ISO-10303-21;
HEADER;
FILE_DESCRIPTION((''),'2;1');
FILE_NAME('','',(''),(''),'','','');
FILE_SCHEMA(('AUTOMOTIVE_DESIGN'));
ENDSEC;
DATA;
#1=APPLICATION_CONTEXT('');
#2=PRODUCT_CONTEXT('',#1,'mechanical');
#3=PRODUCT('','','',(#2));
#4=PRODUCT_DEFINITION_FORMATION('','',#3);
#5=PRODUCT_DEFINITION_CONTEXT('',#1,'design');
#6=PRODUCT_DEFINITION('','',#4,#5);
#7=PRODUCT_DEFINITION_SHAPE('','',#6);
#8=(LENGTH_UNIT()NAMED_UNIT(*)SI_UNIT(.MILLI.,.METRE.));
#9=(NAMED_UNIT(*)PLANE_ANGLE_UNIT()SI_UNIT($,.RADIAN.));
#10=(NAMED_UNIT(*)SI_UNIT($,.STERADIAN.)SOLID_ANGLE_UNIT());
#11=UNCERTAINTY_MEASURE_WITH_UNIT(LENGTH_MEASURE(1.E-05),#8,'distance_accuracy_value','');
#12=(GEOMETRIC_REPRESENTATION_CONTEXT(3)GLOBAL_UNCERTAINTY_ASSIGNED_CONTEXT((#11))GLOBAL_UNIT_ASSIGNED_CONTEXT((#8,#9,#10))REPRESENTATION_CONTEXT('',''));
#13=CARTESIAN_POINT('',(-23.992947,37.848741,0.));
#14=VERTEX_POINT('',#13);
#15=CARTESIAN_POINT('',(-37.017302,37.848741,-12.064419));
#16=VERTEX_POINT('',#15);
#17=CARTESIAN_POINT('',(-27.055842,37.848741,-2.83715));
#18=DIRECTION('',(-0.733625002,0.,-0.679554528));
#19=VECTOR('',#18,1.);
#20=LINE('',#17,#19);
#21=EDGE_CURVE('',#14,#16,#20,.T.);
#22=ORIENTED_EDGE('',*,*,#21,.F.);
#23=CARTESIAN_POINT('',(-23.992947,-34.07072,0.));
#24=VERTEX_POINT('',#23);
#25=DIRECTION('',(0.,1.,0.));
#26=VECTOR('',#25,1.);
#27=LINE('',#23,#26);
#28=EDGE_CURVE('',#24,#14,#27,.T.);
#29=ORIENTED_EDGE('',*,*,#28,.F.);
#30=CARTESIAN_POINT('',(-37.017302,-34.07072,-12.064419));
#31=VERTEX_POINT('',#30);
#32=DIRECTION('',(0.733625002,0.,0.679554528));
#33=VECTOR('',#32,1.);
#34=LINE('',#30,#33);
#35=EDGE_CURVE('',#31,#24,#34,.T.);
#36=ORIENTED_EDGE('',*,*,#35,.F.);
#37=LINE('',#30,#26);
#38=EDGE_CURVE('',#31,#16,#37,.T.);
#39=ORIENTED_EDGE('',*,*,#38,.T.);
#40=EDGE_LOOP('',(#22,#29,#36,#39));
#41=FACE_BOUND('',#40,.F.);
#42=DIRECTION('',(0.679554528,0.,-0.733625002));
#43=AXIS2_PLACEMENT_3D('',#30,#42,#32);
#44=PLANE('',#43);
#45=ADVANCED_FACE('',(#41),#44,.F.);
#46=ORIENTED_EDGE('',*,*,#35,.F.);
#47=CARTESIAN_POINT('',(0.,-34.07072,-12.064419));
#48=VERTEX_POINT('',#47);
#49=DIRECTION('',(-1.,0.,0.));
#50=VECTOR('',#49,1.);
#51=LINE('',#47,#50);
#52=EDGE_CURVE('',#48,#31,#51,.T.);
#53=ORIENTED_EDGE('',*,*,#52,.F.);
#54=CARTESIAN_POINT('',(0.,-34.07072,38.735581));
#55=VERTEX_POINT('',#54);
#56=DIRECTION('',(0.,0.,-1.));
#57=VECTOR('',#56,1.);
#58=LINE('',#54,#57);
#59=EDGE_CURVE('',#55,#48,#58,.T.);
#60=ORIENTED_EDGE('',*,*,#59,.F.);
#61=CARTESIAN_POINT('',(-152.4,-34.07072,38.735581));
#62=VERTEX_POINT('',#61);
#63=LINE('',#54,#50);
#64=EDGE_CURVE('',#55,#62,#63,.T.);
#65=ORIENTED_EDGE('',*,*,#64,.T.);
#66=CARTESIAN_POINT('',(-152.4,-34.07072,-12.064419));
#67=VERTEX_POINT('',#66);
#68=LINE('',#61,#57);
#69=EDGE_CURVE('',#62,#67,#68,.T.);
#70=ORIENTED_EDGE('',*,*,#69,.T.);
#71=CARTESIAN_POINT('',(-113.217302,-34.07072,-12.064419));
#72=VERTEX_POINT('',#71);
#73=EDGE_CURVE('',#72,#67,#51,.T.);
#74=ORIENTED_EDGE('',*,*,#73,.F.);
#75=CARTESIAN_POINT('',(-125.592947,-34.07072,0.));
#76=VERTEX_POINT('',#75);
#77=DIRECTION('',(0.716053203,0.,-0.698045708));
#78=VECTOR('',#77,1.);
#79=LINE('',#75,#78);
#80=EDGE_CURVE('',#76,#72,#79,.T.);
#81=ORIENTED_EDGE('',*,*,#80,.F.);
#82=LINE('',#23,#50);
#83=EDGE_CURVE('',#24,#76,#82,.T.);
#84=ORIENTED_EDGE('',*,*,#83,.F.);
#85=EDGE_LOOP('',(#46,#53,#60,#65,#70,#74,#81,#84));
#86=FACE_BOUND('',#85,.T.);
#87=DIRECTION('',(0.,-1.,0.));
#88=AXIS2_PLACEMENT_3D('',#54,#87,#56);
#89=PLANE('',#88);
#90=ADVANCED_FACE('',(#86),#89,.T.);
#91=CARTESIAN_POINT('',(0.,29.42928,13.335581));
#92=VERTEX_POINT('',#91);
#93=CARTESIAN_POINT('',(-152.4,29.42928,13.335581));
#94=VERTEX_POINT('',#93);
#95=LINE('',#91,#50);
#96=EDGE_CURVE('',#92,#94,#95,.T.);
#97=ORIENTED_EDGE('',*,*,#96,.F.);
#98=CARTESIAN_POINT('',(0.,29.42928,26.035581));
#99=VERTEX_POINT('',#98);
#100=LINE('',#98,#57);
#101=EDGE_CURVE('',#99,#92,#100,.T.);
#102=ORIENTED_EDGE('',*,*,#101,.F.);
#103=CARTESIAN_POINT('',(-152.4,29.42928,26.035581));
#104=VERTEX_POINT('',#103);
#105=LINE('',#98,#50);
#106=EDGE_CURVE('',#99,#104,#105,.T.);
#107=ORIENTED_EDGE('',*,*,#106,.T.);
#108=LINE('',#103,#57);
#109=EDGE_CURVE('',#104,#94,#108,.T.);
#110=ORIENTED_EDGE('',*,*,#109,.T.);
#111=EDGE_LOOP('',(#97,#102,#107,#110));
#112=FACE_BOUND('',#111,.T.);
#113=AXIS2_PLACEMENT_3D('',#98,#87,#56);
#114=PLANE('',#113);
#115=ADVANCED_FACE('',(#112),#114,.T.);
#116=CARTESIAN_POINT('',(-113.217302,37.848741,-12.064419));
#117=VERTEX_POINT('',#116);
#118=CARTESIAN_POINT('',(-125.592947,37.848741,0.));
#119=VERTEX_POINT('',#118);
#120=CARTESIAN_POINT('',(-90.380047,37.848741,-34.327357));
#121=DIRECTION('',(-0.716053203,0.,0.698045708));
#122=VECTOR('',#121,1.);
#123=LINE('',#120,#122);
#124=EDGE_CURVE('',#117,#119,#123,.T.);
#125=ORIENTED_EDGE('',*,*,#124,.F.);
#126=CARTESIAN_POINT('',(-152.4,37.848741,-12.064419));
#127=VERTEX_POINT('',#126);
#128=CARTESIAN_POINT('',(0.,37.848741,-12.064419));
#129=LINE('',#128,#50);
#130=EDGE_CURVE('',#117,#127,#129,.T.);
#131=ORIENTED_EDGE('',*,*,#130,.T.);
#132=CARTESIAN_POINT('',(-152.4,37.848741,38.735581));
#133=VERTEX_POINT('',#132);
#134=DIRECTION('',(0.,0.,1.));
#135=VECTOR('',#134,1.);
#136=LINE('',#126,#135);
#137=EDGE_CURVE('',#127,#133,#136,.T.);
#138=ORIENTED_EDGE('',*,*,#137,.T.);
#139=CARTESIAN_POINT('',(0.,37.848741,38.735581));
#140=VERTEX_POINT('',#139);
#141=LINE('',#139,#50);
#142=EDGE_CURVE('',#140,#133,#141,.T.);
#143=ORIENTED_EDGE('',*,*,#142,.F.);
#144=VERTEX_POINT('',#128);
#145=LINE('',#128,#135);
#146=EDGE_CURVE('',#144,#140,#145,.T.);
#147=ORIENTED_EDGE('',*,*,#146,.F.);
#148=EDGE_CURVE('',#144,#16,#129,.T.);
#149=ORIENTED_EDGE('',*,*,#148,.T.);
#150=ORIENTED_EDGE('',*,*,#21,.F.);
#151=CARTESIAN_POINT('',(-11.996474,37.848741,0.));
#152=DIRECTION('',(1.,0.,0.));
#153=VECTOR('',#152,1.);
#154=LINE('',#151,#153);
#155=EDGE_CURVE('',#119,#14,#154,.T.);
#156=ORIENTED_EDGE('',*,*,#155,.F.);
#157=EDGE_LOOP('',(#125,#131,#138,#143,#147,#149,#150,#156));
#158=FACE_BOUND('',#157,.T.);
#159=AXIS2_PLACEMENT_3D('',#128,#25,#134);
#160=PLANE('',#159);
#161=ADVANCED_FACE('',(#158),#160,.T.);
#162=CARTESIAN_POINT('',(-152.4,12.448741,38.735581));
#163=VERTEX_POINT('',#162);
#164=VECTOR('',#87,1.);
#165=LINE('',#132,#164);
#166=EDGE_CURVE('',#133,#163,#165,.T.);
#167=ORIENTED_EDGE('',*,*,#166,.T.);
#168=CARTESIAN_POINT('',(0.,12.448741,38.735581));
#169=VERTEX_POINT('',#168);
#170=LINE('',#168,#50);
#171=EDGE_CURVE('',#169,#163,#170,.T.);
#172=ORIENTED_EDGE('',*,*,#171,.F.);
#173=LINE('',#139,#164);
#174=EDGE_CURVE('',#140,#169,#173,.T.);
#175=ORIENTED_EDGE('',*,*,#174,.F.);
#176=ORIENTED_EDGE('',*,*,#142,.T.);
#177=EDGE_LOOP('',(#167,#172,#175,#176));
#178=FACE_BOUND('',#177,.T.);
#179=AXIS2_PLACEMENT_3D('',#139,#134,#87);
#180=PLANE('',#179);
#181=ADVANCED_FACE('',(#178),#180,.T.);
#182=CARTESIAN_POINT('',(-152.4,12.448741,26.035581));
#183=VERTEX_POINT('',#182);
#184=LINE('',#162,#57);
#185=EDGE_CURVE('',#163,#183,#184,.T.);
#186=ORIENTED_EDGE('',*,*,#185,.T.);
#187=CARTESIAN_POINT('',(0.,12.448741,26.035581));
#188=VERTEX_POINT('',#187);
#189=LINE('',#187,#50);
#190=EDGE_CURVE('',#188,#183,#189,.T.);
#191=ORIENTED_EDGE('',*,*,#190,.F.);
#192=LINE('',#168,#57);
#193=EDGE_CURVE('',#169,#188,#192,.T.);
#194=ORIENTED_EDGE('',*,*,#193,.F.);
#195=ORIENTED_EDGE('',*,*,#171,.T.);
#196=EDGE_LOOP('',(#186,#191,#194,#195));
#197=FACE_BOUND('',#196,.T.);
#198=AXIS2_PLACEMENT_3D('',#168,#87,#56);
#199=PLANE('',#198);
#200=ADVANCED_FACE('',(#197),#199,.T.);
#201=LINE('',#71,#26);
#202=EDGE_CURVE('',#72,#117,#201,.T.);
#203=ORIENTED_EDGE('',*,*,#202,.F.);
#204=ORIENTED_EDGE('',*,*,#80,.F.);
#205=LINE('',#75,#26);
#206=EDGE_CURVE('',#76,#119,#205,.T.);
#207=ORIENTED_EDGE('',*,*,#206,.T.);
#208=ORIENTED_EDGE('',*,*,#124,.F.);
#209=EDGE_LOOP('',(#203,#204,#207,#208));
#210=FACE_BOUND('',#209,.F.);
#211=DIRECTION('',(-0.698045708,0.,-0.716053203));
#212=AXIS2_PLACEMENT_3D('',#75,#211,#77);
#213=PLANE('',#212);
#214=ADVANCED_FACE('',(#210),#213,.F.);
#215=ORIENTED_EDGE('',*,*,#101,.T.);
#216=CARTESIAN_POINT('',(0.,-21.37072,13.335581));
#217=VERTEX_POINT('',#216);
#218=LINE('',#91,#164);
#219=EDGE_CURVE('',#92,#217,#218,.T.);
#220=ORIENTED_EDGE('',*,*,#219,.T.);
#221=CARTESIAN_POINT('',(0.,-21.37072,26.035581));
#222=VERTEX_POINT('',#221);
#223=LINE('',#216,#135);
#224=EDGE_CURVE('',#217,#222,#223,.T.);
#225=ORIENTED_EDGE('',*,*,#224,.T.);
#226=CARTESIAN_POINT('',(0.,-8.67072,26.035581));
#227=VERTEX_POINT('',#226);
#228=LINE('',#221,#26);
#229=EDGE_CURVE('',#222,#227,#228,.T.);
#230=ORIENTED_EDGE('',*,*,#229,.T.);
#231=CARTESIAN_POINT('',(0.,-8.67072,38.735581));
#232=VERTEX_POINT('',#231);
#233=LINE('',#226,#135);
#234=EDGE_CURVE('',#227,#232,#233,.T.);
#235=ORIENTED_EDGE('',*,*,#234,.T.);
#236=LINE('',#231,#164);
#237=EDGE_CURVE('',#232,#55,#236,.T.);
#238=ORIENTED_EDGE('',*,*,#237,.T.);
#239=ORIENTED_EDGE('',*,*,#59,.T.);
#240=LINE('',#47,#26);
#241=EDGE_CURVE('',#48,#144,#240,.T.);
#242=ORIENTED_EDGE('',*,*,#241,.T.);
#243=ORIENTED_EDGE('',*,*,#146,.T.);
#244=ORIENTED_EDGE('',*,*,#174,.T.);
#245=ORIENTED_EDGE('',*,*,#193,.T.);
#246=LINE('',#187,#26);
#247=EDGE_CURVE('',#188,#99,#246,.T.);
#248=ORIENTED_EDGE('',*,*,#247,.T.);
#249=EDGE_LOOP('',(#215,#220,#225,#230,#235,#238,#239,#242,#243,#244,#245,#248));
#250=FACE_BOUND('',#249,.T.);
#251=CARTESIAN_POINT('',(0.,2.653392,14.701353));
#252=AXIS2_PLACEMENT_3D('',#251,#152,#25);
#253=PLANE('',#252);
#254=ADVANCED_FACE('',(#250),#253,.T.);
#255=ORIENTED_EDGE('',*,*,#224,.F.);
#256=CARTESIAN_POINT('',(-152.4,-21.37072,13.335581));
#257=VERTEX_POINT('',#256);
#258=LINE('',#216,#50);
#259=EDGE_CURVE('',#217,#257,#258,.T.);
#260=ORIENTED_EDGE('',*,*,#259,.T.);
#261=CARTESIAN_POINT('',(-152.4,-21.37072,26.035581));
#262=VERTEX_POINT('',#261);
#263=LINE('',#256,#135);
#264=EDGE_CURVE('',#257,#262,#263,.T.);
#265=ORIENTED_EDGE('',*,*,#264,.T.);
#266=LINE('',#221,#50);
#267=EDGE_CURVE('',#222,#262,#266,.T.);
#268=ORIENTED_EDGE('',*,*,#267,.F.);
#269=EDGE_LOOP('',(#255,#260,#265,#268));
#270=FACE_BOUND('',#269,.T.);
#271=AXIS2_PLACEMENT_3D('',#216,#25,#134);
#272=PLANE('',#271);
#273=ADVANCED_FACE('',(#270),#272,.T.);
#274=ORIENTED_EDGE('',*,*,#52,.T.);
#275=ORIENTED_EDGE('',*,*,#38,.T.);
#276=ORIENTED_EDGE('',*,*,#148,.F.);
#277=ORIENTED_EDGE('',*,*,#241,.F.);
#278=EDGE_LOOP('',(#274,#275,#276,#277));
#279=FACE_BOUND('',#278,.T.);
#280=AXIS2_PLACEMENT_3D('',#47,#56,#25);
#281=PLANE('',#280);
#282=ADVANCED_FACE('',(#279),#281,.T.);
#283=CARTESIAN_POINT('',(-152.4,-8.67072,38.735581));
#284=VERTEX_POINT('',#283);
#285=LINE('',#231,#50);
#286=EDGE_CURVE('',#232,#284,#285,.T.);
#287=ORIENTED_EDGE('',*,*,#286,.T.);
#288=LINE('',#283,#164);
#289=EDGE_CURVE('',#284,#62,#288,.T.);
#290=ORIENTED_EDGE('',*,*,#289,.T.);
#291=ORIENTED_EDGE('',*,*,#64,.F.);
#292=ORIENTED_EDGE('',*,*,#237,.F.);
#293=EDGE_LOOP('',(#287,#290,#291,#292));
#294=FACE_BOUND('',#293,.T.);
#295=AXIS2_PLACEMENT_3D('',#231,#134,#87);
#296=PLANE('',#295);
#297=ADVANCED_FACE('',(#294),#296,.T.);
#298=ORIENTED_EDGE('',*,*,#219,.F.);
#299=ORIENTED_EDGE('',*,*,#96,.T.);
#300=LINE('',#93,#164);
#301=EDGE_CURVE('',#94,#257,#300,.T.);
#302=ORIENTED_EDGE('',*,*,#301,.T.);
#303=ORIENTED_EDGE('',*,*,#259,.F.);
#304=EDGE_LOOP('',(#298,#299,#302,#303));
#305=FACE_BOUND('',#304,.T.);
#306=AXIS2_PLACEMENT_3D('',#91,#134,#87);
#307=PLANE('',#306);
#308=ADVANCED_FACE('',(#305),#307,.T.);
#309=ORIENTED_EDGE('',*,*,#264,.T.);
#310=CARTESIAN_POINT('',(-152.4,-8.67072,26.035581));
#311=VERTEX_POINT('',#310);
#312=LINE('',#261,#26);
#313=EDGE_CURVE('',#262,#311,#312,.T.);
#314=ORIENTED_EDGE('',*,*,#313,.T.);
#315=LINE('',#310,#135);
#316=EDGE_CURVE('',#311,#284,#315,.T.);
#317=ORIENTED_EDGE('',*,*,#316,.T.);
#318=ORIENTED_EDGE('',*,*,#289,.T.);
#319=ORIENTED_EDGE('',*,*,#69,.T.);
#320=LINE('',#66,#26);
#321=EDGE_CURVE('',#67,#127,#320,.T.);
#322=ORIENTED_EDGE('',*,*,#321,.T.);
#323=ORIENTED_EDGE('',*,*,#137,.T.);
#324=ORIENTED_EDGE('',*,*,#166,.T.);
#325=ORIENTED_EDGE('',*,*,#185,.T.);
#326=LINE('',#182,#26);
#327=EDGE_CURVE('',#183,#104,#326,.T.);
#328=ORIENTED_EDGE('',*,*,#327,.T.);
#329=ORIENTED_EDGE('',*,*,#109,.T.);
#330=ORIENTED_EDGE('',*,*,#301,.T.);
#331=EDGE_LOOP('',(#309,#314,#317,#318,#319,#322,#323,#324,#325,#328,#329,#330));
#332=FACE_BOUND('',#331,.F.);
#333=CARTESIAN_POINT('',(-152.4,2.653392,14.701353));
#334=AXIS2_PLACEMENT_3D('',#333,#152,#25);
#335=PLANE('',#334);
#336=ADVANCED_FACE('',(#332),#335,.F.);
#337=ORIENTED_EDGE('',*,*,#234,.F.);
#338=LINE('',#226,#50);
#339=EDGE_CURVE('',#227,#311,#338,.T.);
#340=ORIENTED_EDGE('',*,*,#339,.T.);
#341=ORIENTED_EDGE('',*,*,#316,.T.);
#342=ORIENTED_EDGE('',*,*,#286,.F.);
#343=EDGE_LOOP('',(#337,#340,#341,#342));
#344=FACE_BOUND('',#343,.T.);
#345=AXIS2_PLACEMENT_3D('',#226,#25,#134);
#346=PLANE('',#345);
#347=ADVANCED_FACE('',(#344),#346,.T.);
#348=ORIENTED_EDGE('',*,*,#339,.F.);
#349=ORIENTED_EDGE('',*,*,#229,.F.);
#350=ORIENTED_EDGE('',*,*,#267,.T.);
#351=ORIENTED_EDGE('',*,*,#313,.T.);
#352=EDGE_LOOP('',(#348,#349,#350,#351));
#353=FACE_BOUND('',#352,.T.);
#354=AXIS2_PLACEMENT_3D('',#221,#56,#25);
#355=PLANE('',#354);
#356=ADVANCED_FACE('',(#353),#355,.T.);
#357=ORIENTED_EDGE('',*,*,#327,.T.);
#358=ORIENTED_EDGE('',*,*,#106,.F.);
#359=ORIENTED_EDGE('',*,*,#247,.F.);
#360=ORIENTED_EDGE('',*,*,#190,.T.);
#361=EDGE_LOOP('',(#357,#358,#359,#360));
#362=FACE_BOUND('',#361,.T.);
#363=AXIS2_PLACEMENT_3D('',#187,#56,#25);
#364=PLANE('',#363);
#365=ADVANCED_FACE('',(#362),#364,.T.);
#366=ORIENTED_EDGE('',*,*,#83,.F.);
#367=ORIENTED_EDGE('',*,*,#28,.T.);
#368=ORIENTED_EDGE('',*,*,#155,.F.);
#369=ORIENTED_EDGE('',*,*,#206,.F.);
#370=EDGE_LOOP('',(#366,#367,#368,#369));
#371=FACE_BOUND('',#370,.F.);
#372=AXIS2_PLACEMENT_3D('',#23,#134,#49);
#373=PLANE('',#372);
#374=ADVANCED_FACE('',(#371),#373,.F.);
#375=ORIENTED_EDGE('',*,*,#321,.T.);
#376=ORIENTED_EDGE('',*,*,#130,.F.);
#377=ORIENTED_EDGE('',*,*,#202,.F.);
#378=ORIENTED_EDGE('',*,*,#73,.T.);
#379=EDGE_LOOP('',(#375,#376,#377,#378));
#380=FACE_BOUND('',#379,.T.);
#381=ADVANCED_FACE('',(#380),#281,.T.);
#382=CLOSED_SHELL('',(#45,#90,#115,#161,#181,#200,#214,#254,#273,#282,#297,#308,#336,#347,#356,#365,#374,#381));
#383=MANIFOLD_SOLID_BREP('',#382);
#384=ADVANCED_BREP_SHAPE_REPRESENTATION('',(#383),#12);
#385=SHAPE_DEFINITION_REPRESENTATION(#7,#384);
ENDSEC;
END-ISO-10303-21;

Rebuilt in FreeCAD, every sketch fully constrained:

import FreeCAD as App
import Part
import Sketcher

V = App.Vector
Q = App.Units.Quantity


def add_polygon(sketch, points):
    """Adds a closed chain of lines whose ends are joined by coincident constraints."""
    first, n = sketch.GeometryCount, len(points)
    for a, b in zip(points, points[1:] + points[:1]):
        sketch.addGeometry(Part.LineSegment(App.Vector(*a, 0), App.Vector(*b, 0)), False)
    for i in range(n):
        sketch.addConstraint(Sketcher.Constraint("Coincident", first + i, 2, first + (i + 1) % n, 1))

doc = App.newDocument("Part")
body = doc.addObject("PartDesign::Body", "Body")

# Sketch on YZ plane
sketch1 = body.newObject("Sketcher::SketchObject", "Sketch")
sketch1.AttachmentSupport = (doc.getObject("YZ_Plane"), [""])
sketch1.MapMode = "FlatFace"
add_polygon(sketch1, [(-9, 39), (-34, 39), (-34, -12), (38, -12), (38, 39), (12, 39), (12, 26), (29, 26), (29, 13), (-21, 13), (-21, 26), (-9, 26)])  # lines 0-11
sketch1.addConstraint([
    Sketcher.Constraint("Horizontal", 0),
    Sketcher.Constraint("Vertical", 1),
    Sketcher.Constraint("Horizontal", 2),
    Sketcher.Constraint("Vertical", 3),
    Sketcher.Constraint("Horizontal", 4),
    Sketcher.Constraint("Vertical", 5),
    Sketcher.Constraint("Horizontal", 6),
    Sketcher.Constraint("Vertical", 7),
    Sketcher.Constraint("Horizontal", 8),
    Sketcher.Constraint("Vertical", 9),
    Sketcher.Constraint("Horizontal", 10),
    Sketcher.Constraint("Vertical", 11),
    Sketcher.Constraint("Horizontal", 0, 2, 3, 2),
    Sketcher.Constraint("Horizontal", 6, 2, 9, 2),
    Sketcher.Constraint("Equal", 0, 4),
    Sketcher.Constraint("Equal", 8, 1),
    Sketcher.Constraint("Equal", 10, 5),
    Sketcher.Constraint("Equal", 5, 7),
    Sketcher.Constraint("DistanceX", 0, 2, 0, 1, Q("1 in")),
    Sketcher.Constraint("DistanceX", 8, 2, 8, 1, Q("2 in")),
    Sketcher.Constraint("DistanceX", 10, 1, 10, 2, Q("0.5 in")),
    Sketcher.Constraint("DistanceX", 2, 1, 2, 2, 71.919461),
    Sketcher.Constraint("DistanceX", 0, 2, -1, 1, 34.07072),
    Sketcher.Constraint("DistanceY", -1, 1, 0, 2, 38.735581),
])
pad1 = body.newObject("PartDesign::Pad", "Pad")
pad1.Profile = sketch1
pad1.Length = Q("6 in")
pad1.Reversed = True

# Sketch on YZ plane
sketch2 = body.newObject("Sketcher::SketchObject", "Sketch001")
sketch2.AttachmentSupport = (doc.getObject("YZ_Plane"), [""])
sketch2.MapMode = "FlatFace"
add_polygon(sketch2, [(-9, 39), (-34, 39), (-34, -12), (38, -12), (38, 39), (12, 39), (12, 26), (29, 26), (29, 13), (-21, 13), (-21, 26), (-9, 26)])  # lines 0-11
sketch2.addConstraint([
    Sketcher.Constraint("Horizontal", 0),
    Sketcher.Constraint("Vertical", 1),
    Sketcher.Constraint("Horizontal", 2),
    Sketcher.Constraint("Vertical", 3),
    Sketcher.Constraint("Horizontal", 4),
    Sketcher.Constraint("Vertical", 5),
    Sketcher.Constraint("Horizontal", 6),
    Sketcher.Constraint("Vertical", 7),
    Sketcher.Constraint("Horizontal", 8),
    Sketcher.Constraint("Vertical", 9),
    Sketcher.Constraint("Horizontal", 10),
    Sketcher.Constraint("Vertical", 11),
    Sketcher.Constraint("Horizontal", 0, 2, 3, 2),
    Sketcher.Constraint("Horizontal", 6, 2, 9, 2),
    Sketcher.Constraint("Equal", 0, 4),
    Sketcher.Constraint("Equal", 8, 1),
    Sketcher.Constraint("Equal", 10, 5),
    Sketcher.Constraint("Equal", 5, 7),
    Sketcher.Constraint("DistanceX", 0, 2, 0, 1, Q("1 in")),
    Sketcher.Constraint("DistanceX", 8, 2, 8, 1, Q("2 in")),
    Sketcher.Constraint("DistanceX", 10, 1, 10, 2, Q("0.5 in")),
    Sketcher.Constraint("DistanceX", 2, 1, 2, 2, 71.919461),
    Sketcher.Constraint("DistanceX", 0, 2, -1, 1, 34.07072),
    Sketcher.Constraint("DistanceY", -1, 1, 0, 2, 38.735581),
])
pad2 = body.newObject("PartDesign::Pad", "Pad001")
pad2.Profile = sketch2
pad2.Length = Q("6 in")
pad2.Reversed = True

# Sketch on XZ plane
sketch3 = body.newObject("Sketcher::SketchObject", "Sketch002")
sketch3.AttachmentSupport = (doc.getObject("XZ_Plane"), [""])
sketch3.MapMode = "FlatFace"
sketch3.AttachmentOffset = App.Placement(V(0, 0, 34.07072), App.Rotation())
add_polygon(sketch3, [(-126, 0), (-113, -12), (-37, -12), (-24, 0)])  # lines 0-3
sketch3.addConstraint([
    Sketcher.Constraint("Horizontal", 1),
    Sketcher.Constraint("Horizontal", 3),
    Sketcher.Constraint("PointOnObject", 2, 2, -1),
    Sketcher.Constraint("DistanceX", 1, 1, 1, 2, Q("3 in")),
    Sketcher.Constraint("DistanceX", 3, 2, 3, 1, Q("4 in")),
    Sketcher.Constraint("DistanceY", 0, 2, -1, 1, 12.064419),
    Sketcher.Constraint("Distance", 0, 17.283136),
    Sketcher.Constraint("DistanceX", 0, 2, -1, 1, 113.217302),
])
pocket1 = body.newObject("PartDesign::Pocket", "Pocket")
pocket1.Profile = sketch3
pocket1.Length = Q("3 in")

doc.recompute()
